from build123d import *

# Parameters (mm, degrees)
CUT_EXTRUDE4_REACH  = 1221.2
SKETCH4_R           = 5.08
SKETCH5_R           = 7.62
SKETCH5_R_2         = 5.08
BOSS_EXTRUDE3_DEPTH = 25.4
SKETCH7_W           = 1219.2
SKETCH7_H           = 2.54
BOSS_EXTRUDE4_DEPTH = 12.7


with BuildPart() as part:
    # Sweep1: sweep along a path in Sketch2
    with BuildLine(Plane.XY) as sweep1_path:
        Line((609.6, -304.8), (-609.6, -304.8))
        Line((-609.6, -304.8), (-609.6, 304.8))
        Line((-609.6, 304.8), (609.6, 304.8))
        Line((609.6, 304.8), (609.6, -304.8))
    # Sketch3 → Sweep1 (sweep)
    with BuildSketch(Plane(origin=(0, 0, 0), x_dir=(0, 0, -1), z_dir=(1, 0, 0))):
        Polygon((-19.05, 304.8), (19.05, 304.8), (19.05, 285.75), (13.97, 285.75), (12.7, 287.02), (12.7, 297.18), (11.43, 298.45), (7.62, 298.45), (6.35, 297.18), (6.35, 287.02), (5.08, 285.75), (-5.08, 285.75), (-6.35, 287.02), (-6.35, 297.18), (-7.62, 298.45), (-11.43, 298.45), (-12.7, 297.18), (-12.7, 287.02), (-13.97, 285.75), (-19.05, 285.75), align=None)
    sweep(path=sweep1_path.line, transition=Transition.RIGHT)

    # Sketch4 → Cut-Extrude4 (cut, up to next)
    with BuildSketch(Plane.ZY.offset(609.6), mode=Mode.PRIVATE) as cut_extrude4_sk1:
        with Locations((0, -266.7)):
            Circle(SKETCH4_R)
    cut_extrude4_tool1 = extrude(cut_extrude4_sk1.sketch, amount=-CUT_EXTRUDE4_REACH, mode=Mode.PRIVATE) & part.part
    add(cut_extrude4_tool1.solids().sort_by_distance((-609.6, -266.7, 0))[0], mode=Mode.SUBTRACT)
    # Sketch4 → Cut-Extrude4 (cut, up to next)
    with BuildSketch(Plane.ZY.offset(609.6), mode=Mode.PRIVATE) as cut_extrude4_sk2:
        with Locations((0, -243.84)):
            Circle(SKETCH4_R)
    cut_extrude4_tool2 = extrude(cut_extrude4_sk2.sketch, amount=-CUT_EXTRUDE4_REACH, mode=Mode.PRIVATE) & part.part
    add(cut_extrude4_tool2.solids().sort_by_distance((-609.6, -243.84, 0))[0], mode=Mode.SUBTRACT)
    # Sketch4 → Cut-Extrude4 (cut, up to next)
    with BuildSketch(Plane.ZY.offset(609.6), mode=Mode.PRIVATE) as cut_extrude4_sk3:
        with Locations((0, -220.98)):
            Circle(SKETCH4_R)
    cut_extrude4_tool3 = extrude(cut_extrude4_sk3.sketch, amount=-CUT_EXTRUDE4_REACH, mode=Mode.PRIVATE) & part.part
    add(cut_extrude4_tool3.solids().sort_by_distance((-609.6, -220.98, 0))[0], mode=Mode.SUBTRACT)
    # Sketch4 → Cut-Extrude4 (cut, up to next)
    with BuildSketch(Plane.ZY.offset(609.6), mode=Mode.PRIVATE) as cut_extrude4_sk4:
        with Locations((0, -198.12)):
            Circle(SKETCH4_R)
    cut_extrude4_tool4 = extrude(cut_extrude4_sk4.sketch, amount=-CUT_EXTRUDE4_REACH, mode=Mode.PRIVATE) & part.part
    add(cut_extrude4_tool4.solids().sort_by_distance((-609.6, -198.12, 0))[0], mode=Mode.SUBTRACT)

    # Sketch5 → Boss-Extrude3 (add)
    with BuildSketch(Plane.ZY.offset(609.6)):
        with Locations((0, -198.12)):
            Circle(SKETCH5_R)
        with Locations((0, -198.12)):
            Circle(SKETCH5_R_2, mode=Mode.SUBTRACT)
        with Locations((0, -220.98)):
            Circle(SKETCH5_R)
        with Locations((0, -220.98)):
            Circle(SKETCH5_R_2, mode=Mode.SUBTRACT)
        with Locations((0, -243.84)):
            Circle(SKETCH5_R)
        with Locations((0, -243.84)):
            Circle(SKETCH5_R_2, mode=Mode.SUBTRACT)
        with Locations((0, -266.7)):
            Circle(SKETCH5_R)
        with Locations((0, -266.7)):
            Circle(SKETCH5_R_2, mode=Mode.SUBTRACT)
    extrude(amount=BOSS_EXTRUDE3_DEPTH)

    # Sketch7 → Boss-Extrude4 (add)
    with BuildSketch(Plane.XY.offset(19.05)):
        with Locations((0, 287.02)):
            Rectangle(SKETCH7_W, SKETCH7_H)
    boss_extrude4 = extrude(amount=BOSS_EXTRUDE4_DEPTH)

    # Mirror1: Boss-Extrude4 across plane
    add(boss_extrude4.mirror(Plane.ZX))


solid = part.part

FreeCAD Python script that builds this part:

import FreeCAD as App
import Part
import Sketcher

V = App.Vector
Q = App.Units.Quantity


def add_polygon(sketch, points):
    """Adds a closed chain of lines whose ends are joined by coincident constraints."""
    first, n = sketch.GeometryCount, len(points)
    for a, b in zip(points, points[1:] + points[:1]):
        sketch.addGeometry(Part.LineSegment(App.Vector(*a, 0), App.Vector(*b, 0)), False)
    for i in range(n):
        sketch.addConstraint(Sketcher.Constraint("Coincident", first + i, 2, first + (i + 1) % n, 1))

doc = App.newDocument("Part")
body = doc.addObject("PartDesign::Body", "Body")

sketch1 = body.newObject("Sketcher::SketchObject", "Sketch")
sketch1.AttachmentSupport = (doc.getObject("YZ_Plane"), [""])
sketch1.MapMode = "FlatFace"
add_polygon(sketch1, [(304.8, -19.1), (304.8, 19.1), (285.8, 19.1), (285.8, 14), (287, 12.7), (297.2, 12.7), (298.4, 11.4), (298.4, 7.6), (297.2, 6.3), (287, 6.3), (285.8, 5.1), (285.8, -5.1), (287, -6.3), (297.2, -6.3), (298.4, -7.6), (298.4, -11.4), (297.2, -12.7), (287, -12.7), (285.8, -14), (285.8, -19.1)])
sketch1.addConstraint([
    Sketcher.Constraint("Vertical", 0),
    Sketcher.Constraint("Horizontal", 1),
    Sketcher.Constraint("Vertical", 2),
    Sketcher.Constraint("Horizontal", 4),
    Sketcher.Constraint("Vertical", 6),
    Sketcher.Constraint("Horizontal", 8),
    Sketcher.Constraint("Vertical", 10),
    Sketcher.Constraint("Horizontal", 12),
    Sketcher.Constraint("Vertical", 14),
    Sketcher.Constraint("Horizontal", 16),
    Sketcher.Constraint("Vertical", 18),
    Sketcher.Constraint("Horizontal", 19),
    Sketcher.Constraint("Symmetric", 8, 2, 11, 2, -1),
    Sketcher.Constraint("Symmetric", 6, 2, 13, 2, -1),
    Sketcher.Constraint("Symmetric", 4, 2, 15, 2, -1),
    Sketcher.Constraint("Symmetric", 2, 2, 17, 2, -1),
    Sketcher.Constraint("Parallel", 3, 5),
    Sketcher.Constraint("Perpendicular", 5, 7),
    Sketcher.Constraint("Parallel", 7, 9),
    Sketcher.Constraint("Perpendicular", 9, 11),
    Sketcher.Constraint("Parallel", 11, 13),
    Sketcher.Constraint("Perpendicular", 13, 15),
    Sketcher.Constraint("Parallel", 15, 17),
    Sketcher.Constraint("Vertical", 4, 2, 7, 2),
    Sketcher.Constraint("Vertical", 3, 2, 8, 2),
    Sketcher.Constraint("Vertical", 2, 2, 9, 2),
    Sketcher.Constraint("Vertical", 7, 2, 12, 2),
    Sketcher.Constraint("Equal", 16, 10),
    Sketcher.Constraint("Equal", 2, 18),
    Sketcher.Constraint("Equal", 3, 5),
    Sketcher.Constraint("DistanceX", 4, 1, 4, 2, Q("0.4 in")),
    Sketcher.Constraint("DistanceY", 0, 1, 0, 2, Q("1.5 in")),
    Sketcher.Constraint("DistanceY", 2, 2, 2, 1, Q("0.2 in")),
    Sketcher.Constraint("DistanceX", -1, 1, 0, 2, Q("12 in")),
    Sketcher.Constraint("DistanceX", 1, 2, 1, 1, Q("0.75 in")),
    Sketcher.Constraint("DistanceY", 6, 2, 6, 1, Q("0.15 in")),
])

sketch2 = body.newObject("Sketcher::SketchObject", "Sketch001")
sketch2.AttachmentSupport = (doc.getObject("XY_Plane"), [""])
sketch2.MapMode = "FlatFace"
add_polygon(sketch2, [(610, -305), (-610, -305), (-610, 305), (610, 305)])
sketch2.addConstraint([
    Sketcher.Constraint("Horizontal", 0),
    Sketcher.Constraint("Vertical", 1),
    Sketcher.Constraint("Horizontal", 2),
    Sketcher.Constraint("Vertical", 3),
    Sketcher.Constraint("Symmetric", 0, 2, 2, 2, -1, 1),
    Sketcher.Constraint("DistanceX", 0, 2, 0, 1, Q("48 in")),
    Sketcher.Constraint("DistanceY", 1, 1, 1, 2, Q("24 in")),
])
doc.recompute()

additivepipe = body.newObject("PartDesign::AdditivePipe", "AdditivePipe")
additivepipe.Profile = sketch1
additivepipe.Spine = (sketch2, ["Edge1", "Edge2", "Edge3", "Edge4"])
additivepipe.Transition = "Right corner"

sketch3 = body.newObject("Sketcher::SketchObject", "Sketch002")
sketch3.AttachmentSupport = (doc.getObject("YZ_Plane"), [""])
sketch3.MapMode = "FlatFace"
sketch3.AttachmentOffset = App.Placement(V(0, 0, -24 * 25.4), App.Rotation())
sketch3.addGeometry(Part.Circle(V(-267, 0, 0), V(0, 0, 1), 5), False)
sketch3.addConstraint([
    Sketcher.Constraint("PointOnObject", 0, 3, -1),
    Sketcher.Constraint("Diameter", 0, Q("0.4 in")),
    Sketcher.Constraint("DistanceX", 0, 3, -1, 1, Q("10.5 in")),
])
pocket1 = body.newObject("PartDesign::Pocket", "Pocket")
pocket1.Profile = sketch3
pocket1.Type = "UpToFirst"
pocket1.Reversed = True

sketch4 = body.newObject("Sketcher::SketchObject", "Sketch003")
sketch4.AttachmentSupport = (doc.getObject("YZ_Plane"), [""])
sketch4.MapMode = "FlatFace"
sketch4.AttachmentOffset = App.Placement(V(0, 0, -24 * 25.4), App.Rotation())
sketch4.addGeometry(Part.Circle(V(-244, 0, 0), V(0, 0, 1), 5), False)
sketch4.addConstraint([
    Sketcher.Constraint("PointOnObject", 0, 3, -1),
    Sketcher.Constraint("Diameter", 0, Q("0.4 in")),
    Sketcher.Constraint("DistanceX", 0, 3, -1, 1, Q("9.6 in")),
])
pocket2 = body.newObject("PartDesign::Pocket", "Pocket001")
pocket2.Profile = sketch4
pocket2.Type = "UpToFirst"
pocket2.Reversed = True

sketch5 = body.newObject("Sketcher::SketchObject", "Sketch004")
sketch5.AttachmentSupport = (doc.getObject("YZ_Plane"), [""])
sketch5.MapMode = "FlatFace"
sketch5.AttachmentOffset = App.Placement(V(0, 0, -24 * 25.4), App.Rotation())
sketch5.addGeometry(Part.Circle(V(-221, 0, 0), V(0, 0, 1), 5), False)
sketch5.addConstraint([
    Sketcher.Constraint("PointOnObject", 0, 3, -1),
    Sketcher.Constraint("Diameter", 0, Q("0.4 in")),
    Sketcher.Constraint("DistanceX", 0, 3, -1, 1, Q("8.7 in")),
])
pocket3 = body.newObject("PartDesign::Pocket", "Pocket002")
pocket3.Profile = sketch5
pocket3.Type = "UpToFirst"
pocket3.Reversed = True

sketch6 = body.newObject("Sketcher::SketchObject", "Sketch005")
sketch6.AttachmentSupport = (doc.getObject("YZ_Plane"), [""])
sketch6.MapMode = "FlatFace"
sketch6.AttachmentOffset = App.Placement(V(0, 0, -24 * 25.4), App.Rotation())
sketch6.addGeometry(Part.Circle(V(-198, 0, 0), V(0, 0, 1), 5), False)
sketch6.addConstraint([
    Sketcher.Constraint("PointOnObject", 0, 3, -1),
    Sketcher.Constraint("Diameter", 0, Q("0.4 in")),
    Sketcher.Constraint("DistanceX", 0, 3, -1, 1, Q("7.8 in")),
])
pocket4 = body.newObject("PartDesign::Pocket", "Pocket003")
pocket4.Profile = sketch6
pocket4.Type = "UpToFirst"
pocket4.Reversed = True

sketch7 = body.newObject("Sketcher::SketchObject", "Sketch006")
sketch7.AttachmentSupport = (doc.getObject("YZ_Plane"), [""])
sketch7.MapMode = "FlatFace"
sketch7.AttachmentOffset = App.Placement(V(0, 0, -24 * 25.4), App.Rotation())
sketch7.addGeometry([
    Part.Circle(V(-198, 0, 0), V(0, 0, 1), 8),
    Part.Circle(V(-198, 0, 0), V(0, 0, 1), 5),
    Part.Circle(V(-221, 0, 0), V(0, 0, 1), 8),
    Part.Circle(V(-221, 0, 0), V(0, 0, 1), 5),
    Part.Circle(V(-244, 0, 0), V(0, 0, 1), 8),
    Part.Circle(V(-244, 0, 0), V(0, 0, 1), 5),
    Part.Circle(V(-267, 0, 0), V(0, 0, 1), 8),
    Part.Circle(V(-267, 0, 0), V(0, 0, 1), 5),
], False)
sketch7.addConstraint([
    Sketcher.Constraint("Coincident", 1, 3, 0, 3),
    Sketcher.Constraint("Coincident", 3, 3, 2, 3),
    Sketcher.Constraint("Coincident", 5, 3, 4, 3),
    Sketcher.Constraint("Coincident", 7, 3, 6, 3),
    Sketcher.Constraint("Equal", 0, 2),
    Sketcher.Constraint("Equal", 1, 3),
    Sketcher.Constraint("Equal", 2, 4),
    Sketcher.Constraint("Equal", 3, 5),
    Sketcher.Constraint("Equal", 4, 6),
    Sketcher.Constraint("Equal", 5, 7),
    Sketcher.Constraint("PointOnObject", 0, 3, -1),
    Sketcher.Constraint("PointOnObject", 2, 3, -1),
    Sketcher.Constraint("PointOnObject", 4, 3, -1),
    Sketcher.Constraint("PointOnObject", 6, 3, -1),
    Sketcher.Constraint("Diameter", 0, Q("0.6 in")),
    Sketcher.Constraint("Diameter", 1, Q("0.4 in")),
    Sketcher.Constraint("DistanceX", 0, 3, -1, 1, Q("7.8 in")),
    Sketcher.Constraint("DistanceX", 2, 3, -1, 1, Q("8.7 in")),
    Sketcher.Constraint("DistanceX", 4, 3, -1, 1, Q("9.6 in")),
    Sketcher.Constraint("DistanceX", 6, 3, -1, 1, Q("10.5 in")),
])
pad1 = body.newObject("PartDesign::Pad", "Pad")
pad1.Profile = sketch7
pad1.Length = Q("1 in")
pad1.Reversed = True

sketch8 = body.newObject("Sketcher::SketchObject", "Sketch007")
sketch8.AttachmentSupport = (doc.getObject("XY_Plane"), [""])
sketch8.MapMode = "FlatFace"
sketch8.AttachmentOffset = App.Placement(V(0, 0, 0.75 * 25.4), App.Rotation())
add_polygon(sketch8, [(-609.6, 288.3), (-609.6, 285.8), (609.6, 285.8), (609.6, 288.3)])
sketch8.addConstraint([
    Sketcher.Constraint("Vertical", 0),
    Sketcher.Constraint("Horizontal", 1),
    Sketcher.Constraint("Vertical", 2),
    Sketcher.Constraint("Horizontal", 3),
    Sketcher.Constraint("DistanceX", 1, 1, 1, 2, Q("48 in")),
    Sketcher.Constraint("DistanceY", 0, 2, 0, 1, Q("0.1 in")),
    Sketcher.Constraint("DistanceX", 0, 2, -1, 1, Q("24 in")),
    Sketcher.Constraint("DistanceY", -1, 1, 0, 2, Q("11.25 in")),
])
pad2 = body.newObject("PartDesign::Pad", "Pad001")
pad2.Profile = sketch8
pad2.Length = Q("0.5 in")
doc.recompute()

mirrored = body.newObject("PartDesign::Mirrored", "Mirrored")
mirrored.Originals = [pad2]
mirrored.MirrorPlane = (doc.getObject("XZ_Plane"), [""])
body.Tip = mirrored

doc.recompute()
